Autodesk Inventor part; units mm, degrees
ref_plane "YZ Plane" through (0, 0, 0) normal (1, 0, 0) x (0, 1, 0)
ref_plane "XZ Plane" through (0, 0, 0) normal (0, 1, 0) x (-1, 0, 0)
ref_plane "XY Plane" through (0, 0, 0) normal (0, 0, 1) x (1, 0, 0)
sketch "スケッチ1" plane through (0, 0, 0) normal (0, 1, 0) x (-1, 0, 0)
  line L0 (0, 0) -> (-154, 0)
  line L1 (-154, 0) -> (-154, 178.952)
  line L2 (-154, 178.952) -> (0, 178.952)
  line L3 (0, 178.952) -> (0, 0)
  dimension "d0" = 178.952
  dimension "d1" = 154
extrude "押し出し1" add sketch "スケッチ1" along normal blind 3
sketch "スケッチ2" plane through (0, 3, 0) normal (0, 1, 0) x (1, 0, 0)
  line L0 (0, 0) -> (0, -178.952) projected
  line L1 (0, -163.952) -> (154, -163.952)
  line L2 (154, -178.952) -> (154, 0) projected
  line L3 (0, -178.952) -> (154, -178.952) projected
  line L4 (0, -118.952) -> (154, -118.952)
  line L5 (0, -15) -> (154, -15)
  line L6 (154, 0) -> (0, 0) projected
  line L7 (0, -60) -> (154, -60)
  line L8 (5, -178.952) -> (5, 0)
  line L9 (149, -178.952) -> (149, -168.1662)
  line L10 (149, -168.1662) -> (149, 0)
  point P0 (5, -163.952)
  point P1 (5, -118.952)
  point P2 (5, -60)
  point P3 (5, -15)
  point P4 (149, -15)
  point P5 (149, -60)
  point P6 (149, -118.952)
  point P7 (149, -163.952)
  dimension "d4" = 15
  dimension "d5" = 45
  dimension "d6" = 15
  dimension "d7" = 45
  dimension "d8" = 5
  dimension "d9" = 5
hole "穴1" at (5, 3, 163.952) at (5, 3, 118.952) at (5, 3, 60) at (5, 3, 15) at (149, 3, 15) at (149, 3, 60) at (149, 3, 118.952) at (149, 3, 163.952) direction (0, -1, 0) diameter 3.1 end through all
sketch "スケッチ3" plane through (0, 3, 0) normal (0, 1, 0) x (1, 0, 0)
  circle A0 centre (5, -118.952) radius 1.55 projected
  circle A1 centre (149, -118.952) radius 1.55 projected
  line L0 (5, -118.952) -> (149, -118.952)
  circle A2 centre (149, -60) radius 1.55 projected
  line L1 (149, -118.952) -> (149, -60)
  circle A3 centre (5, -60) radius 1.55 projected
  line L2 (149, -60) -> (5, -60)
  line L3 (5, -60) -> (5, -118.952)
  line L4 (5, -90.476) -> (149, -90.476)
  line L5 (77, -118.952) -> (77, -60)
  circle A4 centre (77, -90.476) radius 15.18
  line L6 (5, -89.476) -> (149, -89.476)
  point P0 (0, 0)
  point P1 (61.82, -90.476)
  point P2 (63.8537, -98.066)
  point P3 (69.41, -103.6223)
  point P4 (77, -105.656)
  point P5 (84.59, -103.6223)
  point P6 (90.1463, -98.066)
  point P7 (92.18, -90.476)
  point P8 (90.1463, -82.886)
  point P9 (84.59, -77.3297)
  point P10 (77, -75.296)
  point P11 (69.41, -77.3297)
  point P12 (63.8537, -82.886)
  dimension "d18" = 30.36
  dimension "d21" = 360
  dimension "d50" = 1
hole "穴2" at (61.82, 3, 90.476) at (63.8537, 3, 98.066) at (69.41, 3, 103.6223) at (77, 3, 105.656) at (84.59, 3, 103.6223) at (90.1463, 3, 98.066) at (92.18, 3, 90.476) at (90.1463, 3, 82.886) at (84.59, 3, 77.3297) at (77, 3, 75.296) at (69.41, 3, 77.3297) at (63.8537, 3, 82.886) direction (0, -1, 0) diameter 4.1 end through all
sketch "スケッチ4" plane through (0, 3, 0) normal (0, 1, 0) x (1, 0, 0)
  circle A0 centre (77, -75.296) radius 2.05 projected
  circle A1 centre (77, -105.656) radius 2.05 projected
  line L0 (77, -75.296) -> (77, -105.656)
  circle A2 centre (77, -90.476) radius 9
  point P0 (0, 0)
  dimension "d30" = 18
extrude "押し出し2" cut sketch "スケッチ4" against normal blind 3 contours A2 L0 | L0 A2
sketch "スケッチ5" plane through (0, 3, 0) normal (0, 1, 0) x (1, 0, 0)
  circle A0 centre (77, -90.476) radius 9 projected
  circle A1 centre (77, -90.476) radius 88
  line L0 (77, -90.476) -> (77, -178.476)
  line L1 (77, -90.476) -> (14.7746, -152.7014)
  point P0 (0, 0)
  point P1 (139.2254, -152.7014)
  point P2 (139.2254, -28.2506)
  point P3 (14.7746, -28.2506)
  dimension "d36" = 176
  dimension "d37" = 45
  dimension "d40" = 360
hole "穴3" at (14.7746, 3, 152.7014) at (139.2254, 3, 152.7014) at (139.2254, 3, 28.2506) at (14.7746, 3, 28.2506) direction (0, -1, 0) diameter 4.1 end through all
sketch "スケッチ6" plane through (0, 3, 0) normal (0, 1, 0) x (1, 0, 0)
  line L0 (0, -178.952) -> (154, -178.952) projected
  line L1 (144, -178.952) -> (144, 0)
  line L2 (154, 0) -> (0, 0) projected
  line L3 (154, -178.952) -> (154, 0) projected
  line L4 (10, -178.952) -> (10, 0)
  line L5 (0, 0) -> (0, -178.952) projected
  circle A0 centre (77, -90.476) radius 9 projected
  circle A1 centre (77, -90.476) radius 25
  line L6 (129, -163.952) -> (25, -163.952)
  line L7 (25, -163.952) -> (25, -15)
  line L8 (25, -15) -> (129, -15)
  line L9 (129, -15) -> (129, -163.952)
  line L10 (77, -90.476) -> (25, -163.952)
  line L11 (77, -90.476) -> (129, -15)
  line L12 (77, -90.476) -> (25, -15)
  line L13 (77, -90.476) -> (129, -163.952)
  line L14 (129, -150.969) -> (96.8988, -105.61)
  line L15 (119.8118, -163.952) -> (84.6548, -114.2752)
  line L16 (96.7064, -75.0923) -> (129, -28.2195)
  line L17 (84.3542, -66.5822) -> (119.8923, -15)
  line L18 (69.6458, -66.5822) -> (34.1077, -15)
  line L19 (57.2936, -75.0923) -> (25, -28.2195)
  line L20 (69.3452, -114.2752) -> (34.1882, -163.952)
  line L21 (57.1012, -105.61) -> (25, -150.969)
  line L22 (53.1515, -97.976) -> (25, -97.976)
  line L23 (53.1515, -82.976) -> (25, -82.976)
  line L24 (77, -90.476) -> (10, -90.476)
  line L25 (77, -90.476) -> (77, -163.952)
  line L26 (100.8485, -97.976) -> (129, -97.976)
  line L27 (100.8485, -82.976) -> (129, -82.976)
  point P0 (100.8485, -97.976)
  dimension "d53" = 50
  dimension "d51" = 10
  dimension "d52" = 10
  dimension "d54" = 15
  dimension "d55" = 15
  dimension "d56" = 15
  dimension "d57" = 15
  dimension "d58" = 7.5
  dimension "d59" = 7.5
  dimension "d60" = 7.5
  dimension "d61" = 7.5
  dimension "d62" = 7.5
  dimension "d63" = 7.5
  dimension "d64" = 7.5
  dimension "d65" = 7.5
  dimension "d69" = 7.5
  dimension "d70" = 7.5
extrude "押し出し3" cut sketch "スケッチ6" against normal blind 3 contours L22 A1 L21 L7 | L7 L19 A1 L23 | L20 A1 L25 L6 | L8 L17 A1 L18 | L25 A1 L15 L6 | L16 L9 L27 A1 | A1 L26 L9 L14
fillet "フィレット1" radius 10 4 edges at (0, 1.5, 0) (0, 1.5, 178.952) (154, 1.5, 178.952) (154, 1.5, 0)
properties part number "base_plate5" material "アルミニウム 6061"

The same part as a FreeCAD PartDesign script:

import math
import FreeCAD as App
import Part
import Sketcher


def edges_at(feature, points):
    """Names of the edges that pass closest to the given points."""
    edges = feature.Shape.Edges
    near = lambda p: min(range(len(edges)), key=lambda i: edges[i].distToShape(Part.Vertex(*p))[0])
    return sorted({f"Edge{near(p) + 1}" for p in points})

doc = App.newDocument("Part")
body = doc.addObject("PartDesign::Body", "Body")

# Sketch on XZ plane
sketch1 = body.newObject("Sketcher::SketchObject", "Sketch")
sketch1.AttachmentSupport = (doc.getObject("XZ_Plane"), [""])
sketch1.MapMode = "FlatFace"
sketch1.addGeometry([
    Part.LineSegment(App.Vector(154, 0, 0), App.Vector(0, 0, 0)),
    Part.LineSegment(App.Vector(0, 0, 0), App.Vector(0, 178.952, 0)),
    Part.LineSegment(App.Vector(0, 178.952, 0), App.Vector(154, 178.952, 0)),
    Part.LineSegment(App.Vector(154, 178.952, 0), App.Vector(154, 0, 0)),
], False)
sketch1.addConstraint([
    Sketcher.Constraint("Coincident", 0, 2, 1, 1),
    Sketcher.Constraint("Coincident", 1, 2, 2, 1),
    Sketcher.Constraint("Coincident", 2, 2, 3, 1),
    Sketcher.Constraint("Coincident", 3, 2, 0, 1),
    Sketcher.Constraint("Horizontal", 0),
    Sketcher.Constraint("Vertical", 1),
    Sketcher.Constraint("Horizontal", 2),
    Sketcher.Constraint("Vertical", 3),
    Sketcher.Constraint("Coincident", 0, 2, -1, 1),
    Sketcher.Constraint("DistanceX", 0, 2, 0, 1, 154.0),
    Sketcher.Constraint("DistanceY", 1, 1, 1, 2, 178.952),
])
pad1 = body.newObject("PartDesign::Pad", "Pad")
pad1.Profile = sketch1
pad1.Length = 3
pad1.Reversed = True

# Sketch on XZ plane
sketch2 = body.newObject("Sketcher::SketchObject", "Sketch001")
sketch2.AttachmentSupport = (doc.getObject("XZ_Plane"), [""])
sketch2.MapMode = "FlatFace"
sketch2.AttachmentOffset = App.Placement(App.Vector(0, 0, -3), App.Rotation())
sketch2.addGeometry([
    Part.Circle(App.Vector(5, 163.952, 0), App.Vector(0, 0, 1), 1.55),  # 0
    Part.Circle(App.Vector(5, 118.952, 0), App.Vector(0, 0, 1), 1.55),  # 1
    Part.Circle(App.Vector(5, 60, 0), App.Vector(0, 0, 1), 1.55),  # 2
    Part.Circle(App.Vector(5, 15, 0), App.Vector(0, 0, 1), 1.55),  # 3
    Part.Circle(App.Vector(149, 15, 0), App.Vector(0, 0, 1), 1.55),  # 4
    Part.Circle(App.Vector(149, 60, 0), App.Vector(0, 0, 1), 1.55),  # 5
    Part.Circle(App.Vector(149, 118.952, 0), App.Vector(0, 0, 1), 1.55),  # 6
    Part.Circle(App.Vector(149, 163.952, 0), App.Vector(0, 0, 1), 1.55),  # 7
], False)
sketch2.addConstraint([
    Sketcher.Constraint("Equal", 0, 1),
    Sketcher.Constraint("Equal", 1, 2),
    Sketcher.Constraint("Equal", 2, 3),
    Sketcher.Constraint("Equal", 3, 4),
    Sketcher.Constraint("Equal", 4, 5),
    Sketcher.Constraint("Equal", 5, 6),
    Sketcher.Constraint("Equal", 6, 7),
    Sketcher.Constraint("Horizontal", 3, 3, 4, 3),
    Sketcher.Constraint("Horizontal", 2, 3, 5, 3),
    Sketcher.Constraint("Horizontal", 1, 3, 6, 3),
    Sketcher.Constraint("Horizontal", 0, 3, 7, 3),
    Sketcher.Constraint("Vertical", 0, 3, 1, 3),
    Sketcher.Constraint("Vertical", 1, 3, 2, 3),
    Sketcher.Constraint("Vertical", 2, 3, 3, 3),
    Sketcher.Constraint("Vertical", 4, 3, 5, 3),
    Sketcher.Constraint("Vertical", 5, 3, 6, 3),
    Sketcher.Constraint("Vertical", 6, 3, 7, 3),
    Sketcher.Constraint("Diameter", 0, 3.1),
    Sketcher.Constraint("DistanceX", -1, 1, 0, 3, 5.0),
    Sketcher.Constraint("DistanceY", -1, 1, 2, 3, 60.0),
    Sketcher.Constraint("DistanceY", -1, 1, 3, 3, 15.0),
    Sketcher.Constraint("DistanceX", -1, 1, 4, 3, 149.0),
    Sketcher.Constraint("DistanceY", 1, 3, 0, 3, 45.0),
    Sketcher.Constraint("DistanceY", -1, 1, 0, 3, 163.952),
])
doc.recompute()
hole = body.newObject("PartDesign::Hole", "Hole")
hole.Profile = sketch2
hole.ThreadType = "None"
hole.Diameter = 3.1
hole.DepthType = "ThroughAll"
hole.Reversed = True

# Sketch on XZ plane
sketch3 = body.newObject("Sketcher::SketchObject", "Sketch002")
sketch3.AttachmentSupport = (doc.getObject("XZ_Plane"), [""])
sketch3.MapMode = "FlatFace"
sketch3.AttachmentOffset = App.Placement(App.Vector(0, 0, -3), App.Rotation())
sketch3.addGeometry([
    Part.Circle(App.Vector(61.82, 90.476, 0), App.Vector(0, 0, 1), 2.05),  # 0
    Part.Circle(App.Vector(63.8537, 98.066, 0), App.Vector(0, 0, 1), 2.05),  # 1
    Part.Circle(App.Vector(69.41, 103.6223, 0), App.Vector(0, 0, 1), 2.05),  # 2
    Part.Circle(App.Vector(77, 105.656, 0), App.Vector(0, 0, 1), 2.05),  # 3
    Part.Circle(App.Vector(84.59, 103.6223, 0), App.Vector(0, 0, 1), 2.05),  # 4
    Part.Circle(App.Vector(90.1463, 98.066, 0), App.Vector(0, 0, 1), 2.05),  # 5
    Part.Circle(App.Vector(92.18, 90.476, 0), App.Vector(0, 0, 1), 2.05),  # 6
    Part.Circle(App.Vector(90.1463, 82.886, 0), App.Vector(0, 0, 1), 2.05),  # 7
    Part.Circle(App.Vector(84.59, 77.3297, 0), App.Vector(0, 0, 1), 2.05),  # 8
    Part.Circle(App.Vector(77, 75.296, 0), App.Vector(0, 0, 1), 2.05),  # 9
    Part.Circle(App.Vector(69.41, 77.3297, 0), App.Vector(0, 0, 1), 2.05),  # 10
    Part.Circle(App.Vector(63.8537, 82.886, 0), App.Vector(0, 0, 1), 2.05),  # 11
], False)
sketch3.addConstraint([
    Sketcher.Constraint("Equal", 0, 1),
    Sketcher.Constraint("Equal", 1, 2),
    Sketcher.Constraint("Equal", 2, 3),
    Sketcher.Constraint("Equal", 3, 4),
    Sketcher.Constraint("Equal", 4, 5),
    Sketcher.Constraint("Equal", 5, 6),
    Sketcher.Constraint("Equal", 6, 7),
    Sketcher.Constraint("Equal", 7, 8),
    Sketcher.Constraint("Equal", 8, 9),
    Sketcher.Constraint("Equal", 9, 10),
    Sketcher.Constraint("Equal", 10, 11),
    Sketcher.Constraint("Horizontal", 2, 3, 4, 3),
    Sketcher.Constraint("Horizontal", 1, 3, 5, 3),
    Sketcher.Constraint("Horizontal", 0, 3, 6, 3),
    Sketcher.Constraint("Horizontal", 8, 3, 10, 3),
    Sketcher.Constraint("Horizontal", 7, 3, 11, 3),
    Sketcher.Constraint("Vertical", 5, 3, 7, 3),
    Sketcher.Constraint("Vertical", 4, 3, 8, 3),
    Sketcher.Constraint("Vertical", 3, 3, 9, 3),
    Sketcher.Constraint("Vertical", 2, 3, 10, 3),
    Sketcher.Constraint("Vertical", 1, 3, 11, 3),
    Sketcher.Constraint("Diameter", 0, 4.1),
    Sketcher.Constraint("DistanceX", -1, 1, 3, 3, 77.0),
    Sketcher.Constraint("DistanceX", -1, 1, 0, 3, 61.82),
    Sketcher.Constraint("DistanceX", -1, 1, 2, 3, 69.41),
    Sketcher.Constraint("DistanceX", -1, 1, 4, 3, 84.59),
    Sketcher.Constraint("DistanceX", -1, 1, 6, 3, 92.18),
    Sketcher.Constraint("DistanceY", 0, 3, 1, 3, 7.59),
    Sketcher.Constraint("DistanceY", 1, 3, 3, 3, 7.59),
    Sketcher.Constraint("DistanceY", 7, 3, 6, 3, 7.59),
    Sketcher.Constraint("DistanceY", 9, 3, 7, 3, 7.59),
    Sketcher.Constraint("DistanceY", -1, 1, 0, 3, 90.476),
    Sketcher.Constraint("DistanceX", -1, 1, 1, 3, 63.8537),
    Sketcher.Constraint("DistanceY", -1, 1, 2, 3, 103.6223),
    Sketcher.Constraint("DistanceX", -1, 1, 5, 3, 90.1463),
    Sketcher.Constraint("DistanceY", -1, 1, 8, 3, 77.3297),
])
doc.recompute()
hole2 = body.newObject("PartDesign::Hole", "Hole001")
hole2.Profile = sketch3
hole2.ThreadType = "None"
hole2.Diameter = 4.1
hole2.DepthType = "ThroughAll"
hole2.Reversed = True

# Sketch on XZ plane
sketch4 = body.newObject("Sketcher::SketchObject", "Sketch003")
sketch4.AttachmentSupport = (doc.getObject("XZ_Plane"), [""])
sketch4.MapMode = "FlatFace"
sketch4.AttachmentOffset = App.Placement(App.Vector(0, 0, -3), App.Rotation())
sketch4.addGeometry(Part.Circle(App.Vector(77, 90.476, 0), App.Vector(0, 0, 1), 9), False)
sketch4.addConstraint([
    Sketcher.Constraint("Diameter", 0, 18.0),
    Sketcher.Constraint("DistanceX", -1, 1, 0, 3, 77.0),
    Sketcher.Constraint("DistanceY", -1, 1, 0, 3, 90.476),
])
pocket1 = body.newObject("PartDesign::Pocket", "Pocket")
pocket1.Profile = sketch4
pocket1.Length = 3
pocket1.Reversed = True

# Sketch on XZ plane
sketch5 = body.newObject("Sketcher::SketchObject", "Sketch004")
sketch5.AttachmentSupport = (doc.getObject("XZ_Plane"), [""])
sketch5.MapMode = "FlatFace"
sketch5.AttachmentOffset = App.Placement(App.Vector(0, 0, -3), App.Rotation())
sketch5.addGeometry([
    Part.Circle(App.Vector(14.7746, 152.7014, 0), App.Vector(0, 0, 1), 2.05),
    Part.Circle(App.Vector(139.2254, 152.7014, 0), App.Vector(0, 0, 1), 2.05),
    Part.Circle(App.Vector(139.2254, 28.2506, 0), App.Vector(0, 0, 1), 2.05),
    Part.Circle(App.Vector(14.7746, 28.2506, 0), App.Vector(0, 0, 1), 2.05),
], False)
sketch5.addConstraint([
    Sketcher.Constraint("Equal", 0, 1),
    Sketcher.Constraint("Equal", 1, 2),
    Sketcher.Constraint("Equal", 2, 3),
    Sketcher.Constraint("Horizontal", 0, 3, 1, 3),
    Sketcher.Constraint("Horizontal", 2, 3, 3, 3),
    Sketcher.Constraint("Vertical", 1, 3, 2, 3),
    Sketcher.Constraint("Vertical", 0, 3, 3, 3),
    Sketcher.Constraint("Diameter", 0, 4.1),
    Sketcher.Constraint("DistanceX", -1, 1, 0, 3, 14.7746),
    Sketcher.Constraint("DistanceY", -1, 1, 0, 3, 152.7014),
    Sketcher.Constraint("DistanceX", -1, 1, 1, 3, 139.2254),
    Sketcher.Constraint("DistanceY", -1, 1, 2, 3, 28.2506),
])
doc.recompute()
hole3 = body.newObject("PartDesign::Hole", "Hole002")
hole3.Profile = sketch5
hole3.ThreadType = "None"
hole3.Diameter = 4.1
hole3.DepthType = "ThroughAll"
hole3.Reversed = True

# Sketch on XZ plane
sketch6 = body.newObject("Sketcher::SketchObject", "Sketch005")
sketch6.AttachmentSupport = (doc.getObject("XZ_Plane"), [""])
sketch6.MapMode = "FlatFace"
sketch6.AttachmentOffset = App.Placement(App.Vector(0, 0, -3), App.Rotation())
sketch6.addGeometry([
    Part.LineSegment(App.Vector(53.1515, 97.976, 0), App.Vector(25, 97.976, 0)),  # 0
    Part.LineSegment(App.Vector(25, 97.976, 0), App.Vector(25, 150.969, 0)),  # 1
    Part.LineSegment(App.Vector(25, 150.969, 0), App.Vector(57.1012, 105.61, 0)),  # 2
    Part.ArcOfCircle(Part.Circle(App.Vector(77, 90.476, 0), App.Vector(0, 0, 1), 25), math.radians(142.745255), math.radians(162.542411)),  # 3
    Part.LineSegment(App.Vector(25, 28.2195, 0), App.Vector(25, 82.976, 0)),  # 4
    Part.LineSegment(App.Vector(25, 82.976, 0), App.Vector(53.1515, 82.976, 0)),  # 5
    Part.ArcOfCircle(Part.Circle(App.Vector(77, 90.476, 0), App.Vector(0, 0, 1), 25), math.radians(-162.542411), math.radians(-142.022804)),  # 6
    Part.LineSegment(App.Vector(57.2936, 75.0923, 0), App.Vector(25, 28.2195, 0)),  # 7
    Part.LineSegment(App.Vector(69.3452, 114.2752, 0), App.Vector(34.1882, 163.952, 0)),  # 8
    Part.LineSegment(App.Vector(34.1882, 163.952, 0), App.Vector(119.8118, 163.952, 0)),  # 9
    Part.LineSegment(App.Vector(119.8118, 163.952, 0), App.Vector(84.6548, 114.2752, 0)),  # 10
    Part.ArcOfCircle(Part.Circle(App.Vector(77, 90.476, 0), App.Vector(0, 0, 1), 25), math.radians(72.170077), math.radians(107.829923)),  # 11
    Part.LineSegment(App.Vector(119.8923, 15, 0), App.Vector(34.1077, 15, 0)),  # 12
    Part.LineSegment(App.Vector(34.1077, 15, 0), App.Vector(69.6458, 66.5822, 0)),  # 13
    Part.ArcOfCircle(Part.Circle(App.Vector(77, 90.476, 0), App.Vector(0, 0, 1), 25), math.radians(-107.107683), math.radians(-72.892317)),  # 14
    Part.LineSegment(App.Vector(84.3542, 66.5822, 0), App.Vector(119.8923, 15, 0)),  # 15
    Part.LineSegment(App.Vector(129, 28.2195, 0), App.Vector(96.7064, 75.0923, 0)),  # 16
    Part.ArcOfCircle(Part.Circle(App.Vector(77, 90.476, 0), App.Vector(0, 0, 1), 25), math.radians(-37.977196), math.radians(-17.457589)),  # 17
    Part.LineSegment(App.Vector(100.8485, 82.976, 0), App.Vector(129, 82.976, 0)),  # 18
    Part.LineSegment(App.Vector(129, 82.976, 0), App.Vector(129, 28.2195, 0)),  # 19
    Part.ArcOfCircle(Part.Circle(App.Vector(77, 90.476, 0), App.Vector(0, 0, 1), 25), math.radians(17.457589), math.radians(37.254745)),  # 20
    Part.LineSegment(App.Vector(96.8988, 105.61, 0), App.Vector(129, 150.969, 0)),  # 21
    Part.LineSegment(App.Vector(129, 150.969, 0), App.Vector(129, 97.976, 0)),  # 22
    Part.LineSegment(App.Vector(129, 97.976, 0), App.Vector(100.8485, 97.976, 0)),  # 23
], False)
sketch6.addConstraint([
    Sketcher.Constraint("Coincident", 0, 2, 1, 1),
    Sketcher.Constraint("Coincident", 1, 2, 2, 1),
    Sketcher.Constraint("Coincident", 2, 2, 3, 1),
    Sketcher.Constraint("Coincident", 3, 2, 0, 1),
    Sketcher.Constraint("Coincident", 4, 2, 5, 1),
    Sketcher.Constraint("Coincident", 5, 2, 6, 1),
    Sketcher.Constraint("Coincident", 6, 2, 7, 1),
    Sketcher.Constraint("Coincident", 7, 2, 4, 1),
    Sketcher.Constraint("Coincident", 8, 2, 9, 1),
    Sketcher.Constraint("Coincident", 9, 2, 10, 1),
    Sketcher.Constraint("Coincident", 10, 2, 11, 1),
    Sketcher.Constraint("Coincident", 11, 2, 8, 1),
    Sketcher.Constraint("Coincident", 12, 2, 13, 1),
    Sketcher.Constraint("Coincident", 13, 2, 14, 1),
    Sketcher.Constraint("Coincident", 14, 2, 15, 1),
    Sketcher.Constraint("Coincident", 15, 2, 12, 1),
    Sketcher.Constraint("Coincident", 16, 2, 17, 1),
    Sketcher.Constraint("Coincident", 17, 2, 18, 1),
    Sketcher.Constraint("Coincident", 18, 2, 19, 1),
    Sketcher.Constraint("Coincident", 19, 2, 16, 1),
    Sketcher.Constraint("Coincident", 20, 2, 21, 1),
    Sketcher.Constraint("Coincident", 21, 2, 22, 1),
    Sketcher.Constraint("Coincident", 22, 2, 23, 1),
    Sketcher.Constraint("Coincident", 23, 2, 20, 1),
    Sketcher.Constraint("Horizontal", 0),
    Sketcher.Constraint("Vertical", 1),
    Sketcher.Constraint("Vertical", 4),
    Sketcher.Constraint("Horizontal", 5),
    Sketcher.Constraint("Horizontal", 9),
    Sketcher.Constraint("Horizontal", 12),
    Sketcher.Constraint("Horizontal", 18),
    Sketcher.Constraint("Vertical", 19),
    Sketcher.Constraint("Vertical", 22),
    Sketcher.Constraint("Horizontal", 23),
    Sketcher.Constraint("Coincident", 6, 3, 3, 3),
    Sketcher.Constraint("Coincident", 11, 3, 3, 3),
    Sketcher.Constraint("Coincident", 14, 3, 3, 3),
    Sketcher.Constraint("Coincident", 17, 3, 3, 3),
    Sketcher.Constraint("Coincident", 20, 3, 3, 3),
    Sketcher.Constraint("Equal", 3, 6),
    Sketcher.Constraint("Equal", 6, 11),
    Sketcher.Constraint("Equal", 11, 14),
    Sketcher.Constraint("Equal", 14, 17),
    Sketcher.Constraint("Equal", 17, 20),
    Sketcher.Constraint("Parallel", 2, 8),
    Sketcher.Constraint("Parallel", 7, 13),
    Sketcher.Constraint("Parallel", 15, 16),
    Sketcher.Constraint("Parallel", 10, 21),
    Sketcher.Constraint("Horizontal", 10, 2, 11, 2),
    Sketcher.Constraint("Horizontal", 13, 2, 14, 2),
    Sketcher.Constraint("Horizontal", 6, 2, 16, 2),
    Sketcher.Constraint("Horizontal", 5, 2, 17, 2),
    Sketcher.Constraint("Horizontal", 7, 2, 19, 2),
    Sketcher.Constraint("Horizontal", 2, 2, 20, 2),
    Sketcher.Constraint("Horizontal", 1, 2, 21, 2),
    Sketcher.Constraint("Horizontal", 3, 2, 22, 2),
    Sketcher.Constraint("Vertical", 1, 2, 4, 2),
    Sketcher.Constraint("Vertical", 3, 2, 5, 2),
    Sketcher.Constraint("Vertical", 19, 2, 21, 2),
    Sketcher.Constraint("Equal", 5, 18),
    Sketcher.Constraint("Radius", 3, 25.0),
    Sketcher.Constraint("DistanceY", -1, 1, 12, 2, 15.0),
    Sketcher.Constraint("DistanceY", 4, 2, 0, 2, 15.0),
    Sketcher.Constraint("DistanceX", -1, 1, 3, 3, 77.0),
    Sketcher.Constraint("DistanceX", -1, 1, 0, 2, 25.0),
    Sketcher.Constraint("DistanceY", 1, 1, 1, 2, 52.993),
    Sketcher.Constraint("DistanceY", -1, 1, 2, 2, 105.61),
    Sketcher.Constraint("DistanceY", 13, 2, 6, 2, 8.51),
    Sketcher.Constraint("Distance", 2, 55.569),
    Sketcher.Constraint("DistanceX", 9, 1, 9, 2, 85.6236),
    Sketcher.Constraint("DistanceX", 12, 2, 12, 1, 85.7846),
    Sketcher.Constraint("DistanceY", 4, 1, 4, 2, 54.7565),
    Sketcher.Constraint("DistanceY", -1, 1, 8, 2, 163.952),
])
pocket2 = body.newObject("PartDesign::Pocket", "Pocket001")
pocket2.Profile = sketch6
pocket2.Length = 3
pocket2.Reversed = True
doc.recompute()

fillet = body.newObject("PartDesign::Fillet", "Fillet")
fillet.Base = (pocket2, edges_at(pocket2, [
    (0, 1.5, 0),
    (0, 1.5, 178.952),
    (154, 1.5, 178.952),
    (154, 1.5, 0),
]))
fillet.Radius = 10

doc.recompute()
